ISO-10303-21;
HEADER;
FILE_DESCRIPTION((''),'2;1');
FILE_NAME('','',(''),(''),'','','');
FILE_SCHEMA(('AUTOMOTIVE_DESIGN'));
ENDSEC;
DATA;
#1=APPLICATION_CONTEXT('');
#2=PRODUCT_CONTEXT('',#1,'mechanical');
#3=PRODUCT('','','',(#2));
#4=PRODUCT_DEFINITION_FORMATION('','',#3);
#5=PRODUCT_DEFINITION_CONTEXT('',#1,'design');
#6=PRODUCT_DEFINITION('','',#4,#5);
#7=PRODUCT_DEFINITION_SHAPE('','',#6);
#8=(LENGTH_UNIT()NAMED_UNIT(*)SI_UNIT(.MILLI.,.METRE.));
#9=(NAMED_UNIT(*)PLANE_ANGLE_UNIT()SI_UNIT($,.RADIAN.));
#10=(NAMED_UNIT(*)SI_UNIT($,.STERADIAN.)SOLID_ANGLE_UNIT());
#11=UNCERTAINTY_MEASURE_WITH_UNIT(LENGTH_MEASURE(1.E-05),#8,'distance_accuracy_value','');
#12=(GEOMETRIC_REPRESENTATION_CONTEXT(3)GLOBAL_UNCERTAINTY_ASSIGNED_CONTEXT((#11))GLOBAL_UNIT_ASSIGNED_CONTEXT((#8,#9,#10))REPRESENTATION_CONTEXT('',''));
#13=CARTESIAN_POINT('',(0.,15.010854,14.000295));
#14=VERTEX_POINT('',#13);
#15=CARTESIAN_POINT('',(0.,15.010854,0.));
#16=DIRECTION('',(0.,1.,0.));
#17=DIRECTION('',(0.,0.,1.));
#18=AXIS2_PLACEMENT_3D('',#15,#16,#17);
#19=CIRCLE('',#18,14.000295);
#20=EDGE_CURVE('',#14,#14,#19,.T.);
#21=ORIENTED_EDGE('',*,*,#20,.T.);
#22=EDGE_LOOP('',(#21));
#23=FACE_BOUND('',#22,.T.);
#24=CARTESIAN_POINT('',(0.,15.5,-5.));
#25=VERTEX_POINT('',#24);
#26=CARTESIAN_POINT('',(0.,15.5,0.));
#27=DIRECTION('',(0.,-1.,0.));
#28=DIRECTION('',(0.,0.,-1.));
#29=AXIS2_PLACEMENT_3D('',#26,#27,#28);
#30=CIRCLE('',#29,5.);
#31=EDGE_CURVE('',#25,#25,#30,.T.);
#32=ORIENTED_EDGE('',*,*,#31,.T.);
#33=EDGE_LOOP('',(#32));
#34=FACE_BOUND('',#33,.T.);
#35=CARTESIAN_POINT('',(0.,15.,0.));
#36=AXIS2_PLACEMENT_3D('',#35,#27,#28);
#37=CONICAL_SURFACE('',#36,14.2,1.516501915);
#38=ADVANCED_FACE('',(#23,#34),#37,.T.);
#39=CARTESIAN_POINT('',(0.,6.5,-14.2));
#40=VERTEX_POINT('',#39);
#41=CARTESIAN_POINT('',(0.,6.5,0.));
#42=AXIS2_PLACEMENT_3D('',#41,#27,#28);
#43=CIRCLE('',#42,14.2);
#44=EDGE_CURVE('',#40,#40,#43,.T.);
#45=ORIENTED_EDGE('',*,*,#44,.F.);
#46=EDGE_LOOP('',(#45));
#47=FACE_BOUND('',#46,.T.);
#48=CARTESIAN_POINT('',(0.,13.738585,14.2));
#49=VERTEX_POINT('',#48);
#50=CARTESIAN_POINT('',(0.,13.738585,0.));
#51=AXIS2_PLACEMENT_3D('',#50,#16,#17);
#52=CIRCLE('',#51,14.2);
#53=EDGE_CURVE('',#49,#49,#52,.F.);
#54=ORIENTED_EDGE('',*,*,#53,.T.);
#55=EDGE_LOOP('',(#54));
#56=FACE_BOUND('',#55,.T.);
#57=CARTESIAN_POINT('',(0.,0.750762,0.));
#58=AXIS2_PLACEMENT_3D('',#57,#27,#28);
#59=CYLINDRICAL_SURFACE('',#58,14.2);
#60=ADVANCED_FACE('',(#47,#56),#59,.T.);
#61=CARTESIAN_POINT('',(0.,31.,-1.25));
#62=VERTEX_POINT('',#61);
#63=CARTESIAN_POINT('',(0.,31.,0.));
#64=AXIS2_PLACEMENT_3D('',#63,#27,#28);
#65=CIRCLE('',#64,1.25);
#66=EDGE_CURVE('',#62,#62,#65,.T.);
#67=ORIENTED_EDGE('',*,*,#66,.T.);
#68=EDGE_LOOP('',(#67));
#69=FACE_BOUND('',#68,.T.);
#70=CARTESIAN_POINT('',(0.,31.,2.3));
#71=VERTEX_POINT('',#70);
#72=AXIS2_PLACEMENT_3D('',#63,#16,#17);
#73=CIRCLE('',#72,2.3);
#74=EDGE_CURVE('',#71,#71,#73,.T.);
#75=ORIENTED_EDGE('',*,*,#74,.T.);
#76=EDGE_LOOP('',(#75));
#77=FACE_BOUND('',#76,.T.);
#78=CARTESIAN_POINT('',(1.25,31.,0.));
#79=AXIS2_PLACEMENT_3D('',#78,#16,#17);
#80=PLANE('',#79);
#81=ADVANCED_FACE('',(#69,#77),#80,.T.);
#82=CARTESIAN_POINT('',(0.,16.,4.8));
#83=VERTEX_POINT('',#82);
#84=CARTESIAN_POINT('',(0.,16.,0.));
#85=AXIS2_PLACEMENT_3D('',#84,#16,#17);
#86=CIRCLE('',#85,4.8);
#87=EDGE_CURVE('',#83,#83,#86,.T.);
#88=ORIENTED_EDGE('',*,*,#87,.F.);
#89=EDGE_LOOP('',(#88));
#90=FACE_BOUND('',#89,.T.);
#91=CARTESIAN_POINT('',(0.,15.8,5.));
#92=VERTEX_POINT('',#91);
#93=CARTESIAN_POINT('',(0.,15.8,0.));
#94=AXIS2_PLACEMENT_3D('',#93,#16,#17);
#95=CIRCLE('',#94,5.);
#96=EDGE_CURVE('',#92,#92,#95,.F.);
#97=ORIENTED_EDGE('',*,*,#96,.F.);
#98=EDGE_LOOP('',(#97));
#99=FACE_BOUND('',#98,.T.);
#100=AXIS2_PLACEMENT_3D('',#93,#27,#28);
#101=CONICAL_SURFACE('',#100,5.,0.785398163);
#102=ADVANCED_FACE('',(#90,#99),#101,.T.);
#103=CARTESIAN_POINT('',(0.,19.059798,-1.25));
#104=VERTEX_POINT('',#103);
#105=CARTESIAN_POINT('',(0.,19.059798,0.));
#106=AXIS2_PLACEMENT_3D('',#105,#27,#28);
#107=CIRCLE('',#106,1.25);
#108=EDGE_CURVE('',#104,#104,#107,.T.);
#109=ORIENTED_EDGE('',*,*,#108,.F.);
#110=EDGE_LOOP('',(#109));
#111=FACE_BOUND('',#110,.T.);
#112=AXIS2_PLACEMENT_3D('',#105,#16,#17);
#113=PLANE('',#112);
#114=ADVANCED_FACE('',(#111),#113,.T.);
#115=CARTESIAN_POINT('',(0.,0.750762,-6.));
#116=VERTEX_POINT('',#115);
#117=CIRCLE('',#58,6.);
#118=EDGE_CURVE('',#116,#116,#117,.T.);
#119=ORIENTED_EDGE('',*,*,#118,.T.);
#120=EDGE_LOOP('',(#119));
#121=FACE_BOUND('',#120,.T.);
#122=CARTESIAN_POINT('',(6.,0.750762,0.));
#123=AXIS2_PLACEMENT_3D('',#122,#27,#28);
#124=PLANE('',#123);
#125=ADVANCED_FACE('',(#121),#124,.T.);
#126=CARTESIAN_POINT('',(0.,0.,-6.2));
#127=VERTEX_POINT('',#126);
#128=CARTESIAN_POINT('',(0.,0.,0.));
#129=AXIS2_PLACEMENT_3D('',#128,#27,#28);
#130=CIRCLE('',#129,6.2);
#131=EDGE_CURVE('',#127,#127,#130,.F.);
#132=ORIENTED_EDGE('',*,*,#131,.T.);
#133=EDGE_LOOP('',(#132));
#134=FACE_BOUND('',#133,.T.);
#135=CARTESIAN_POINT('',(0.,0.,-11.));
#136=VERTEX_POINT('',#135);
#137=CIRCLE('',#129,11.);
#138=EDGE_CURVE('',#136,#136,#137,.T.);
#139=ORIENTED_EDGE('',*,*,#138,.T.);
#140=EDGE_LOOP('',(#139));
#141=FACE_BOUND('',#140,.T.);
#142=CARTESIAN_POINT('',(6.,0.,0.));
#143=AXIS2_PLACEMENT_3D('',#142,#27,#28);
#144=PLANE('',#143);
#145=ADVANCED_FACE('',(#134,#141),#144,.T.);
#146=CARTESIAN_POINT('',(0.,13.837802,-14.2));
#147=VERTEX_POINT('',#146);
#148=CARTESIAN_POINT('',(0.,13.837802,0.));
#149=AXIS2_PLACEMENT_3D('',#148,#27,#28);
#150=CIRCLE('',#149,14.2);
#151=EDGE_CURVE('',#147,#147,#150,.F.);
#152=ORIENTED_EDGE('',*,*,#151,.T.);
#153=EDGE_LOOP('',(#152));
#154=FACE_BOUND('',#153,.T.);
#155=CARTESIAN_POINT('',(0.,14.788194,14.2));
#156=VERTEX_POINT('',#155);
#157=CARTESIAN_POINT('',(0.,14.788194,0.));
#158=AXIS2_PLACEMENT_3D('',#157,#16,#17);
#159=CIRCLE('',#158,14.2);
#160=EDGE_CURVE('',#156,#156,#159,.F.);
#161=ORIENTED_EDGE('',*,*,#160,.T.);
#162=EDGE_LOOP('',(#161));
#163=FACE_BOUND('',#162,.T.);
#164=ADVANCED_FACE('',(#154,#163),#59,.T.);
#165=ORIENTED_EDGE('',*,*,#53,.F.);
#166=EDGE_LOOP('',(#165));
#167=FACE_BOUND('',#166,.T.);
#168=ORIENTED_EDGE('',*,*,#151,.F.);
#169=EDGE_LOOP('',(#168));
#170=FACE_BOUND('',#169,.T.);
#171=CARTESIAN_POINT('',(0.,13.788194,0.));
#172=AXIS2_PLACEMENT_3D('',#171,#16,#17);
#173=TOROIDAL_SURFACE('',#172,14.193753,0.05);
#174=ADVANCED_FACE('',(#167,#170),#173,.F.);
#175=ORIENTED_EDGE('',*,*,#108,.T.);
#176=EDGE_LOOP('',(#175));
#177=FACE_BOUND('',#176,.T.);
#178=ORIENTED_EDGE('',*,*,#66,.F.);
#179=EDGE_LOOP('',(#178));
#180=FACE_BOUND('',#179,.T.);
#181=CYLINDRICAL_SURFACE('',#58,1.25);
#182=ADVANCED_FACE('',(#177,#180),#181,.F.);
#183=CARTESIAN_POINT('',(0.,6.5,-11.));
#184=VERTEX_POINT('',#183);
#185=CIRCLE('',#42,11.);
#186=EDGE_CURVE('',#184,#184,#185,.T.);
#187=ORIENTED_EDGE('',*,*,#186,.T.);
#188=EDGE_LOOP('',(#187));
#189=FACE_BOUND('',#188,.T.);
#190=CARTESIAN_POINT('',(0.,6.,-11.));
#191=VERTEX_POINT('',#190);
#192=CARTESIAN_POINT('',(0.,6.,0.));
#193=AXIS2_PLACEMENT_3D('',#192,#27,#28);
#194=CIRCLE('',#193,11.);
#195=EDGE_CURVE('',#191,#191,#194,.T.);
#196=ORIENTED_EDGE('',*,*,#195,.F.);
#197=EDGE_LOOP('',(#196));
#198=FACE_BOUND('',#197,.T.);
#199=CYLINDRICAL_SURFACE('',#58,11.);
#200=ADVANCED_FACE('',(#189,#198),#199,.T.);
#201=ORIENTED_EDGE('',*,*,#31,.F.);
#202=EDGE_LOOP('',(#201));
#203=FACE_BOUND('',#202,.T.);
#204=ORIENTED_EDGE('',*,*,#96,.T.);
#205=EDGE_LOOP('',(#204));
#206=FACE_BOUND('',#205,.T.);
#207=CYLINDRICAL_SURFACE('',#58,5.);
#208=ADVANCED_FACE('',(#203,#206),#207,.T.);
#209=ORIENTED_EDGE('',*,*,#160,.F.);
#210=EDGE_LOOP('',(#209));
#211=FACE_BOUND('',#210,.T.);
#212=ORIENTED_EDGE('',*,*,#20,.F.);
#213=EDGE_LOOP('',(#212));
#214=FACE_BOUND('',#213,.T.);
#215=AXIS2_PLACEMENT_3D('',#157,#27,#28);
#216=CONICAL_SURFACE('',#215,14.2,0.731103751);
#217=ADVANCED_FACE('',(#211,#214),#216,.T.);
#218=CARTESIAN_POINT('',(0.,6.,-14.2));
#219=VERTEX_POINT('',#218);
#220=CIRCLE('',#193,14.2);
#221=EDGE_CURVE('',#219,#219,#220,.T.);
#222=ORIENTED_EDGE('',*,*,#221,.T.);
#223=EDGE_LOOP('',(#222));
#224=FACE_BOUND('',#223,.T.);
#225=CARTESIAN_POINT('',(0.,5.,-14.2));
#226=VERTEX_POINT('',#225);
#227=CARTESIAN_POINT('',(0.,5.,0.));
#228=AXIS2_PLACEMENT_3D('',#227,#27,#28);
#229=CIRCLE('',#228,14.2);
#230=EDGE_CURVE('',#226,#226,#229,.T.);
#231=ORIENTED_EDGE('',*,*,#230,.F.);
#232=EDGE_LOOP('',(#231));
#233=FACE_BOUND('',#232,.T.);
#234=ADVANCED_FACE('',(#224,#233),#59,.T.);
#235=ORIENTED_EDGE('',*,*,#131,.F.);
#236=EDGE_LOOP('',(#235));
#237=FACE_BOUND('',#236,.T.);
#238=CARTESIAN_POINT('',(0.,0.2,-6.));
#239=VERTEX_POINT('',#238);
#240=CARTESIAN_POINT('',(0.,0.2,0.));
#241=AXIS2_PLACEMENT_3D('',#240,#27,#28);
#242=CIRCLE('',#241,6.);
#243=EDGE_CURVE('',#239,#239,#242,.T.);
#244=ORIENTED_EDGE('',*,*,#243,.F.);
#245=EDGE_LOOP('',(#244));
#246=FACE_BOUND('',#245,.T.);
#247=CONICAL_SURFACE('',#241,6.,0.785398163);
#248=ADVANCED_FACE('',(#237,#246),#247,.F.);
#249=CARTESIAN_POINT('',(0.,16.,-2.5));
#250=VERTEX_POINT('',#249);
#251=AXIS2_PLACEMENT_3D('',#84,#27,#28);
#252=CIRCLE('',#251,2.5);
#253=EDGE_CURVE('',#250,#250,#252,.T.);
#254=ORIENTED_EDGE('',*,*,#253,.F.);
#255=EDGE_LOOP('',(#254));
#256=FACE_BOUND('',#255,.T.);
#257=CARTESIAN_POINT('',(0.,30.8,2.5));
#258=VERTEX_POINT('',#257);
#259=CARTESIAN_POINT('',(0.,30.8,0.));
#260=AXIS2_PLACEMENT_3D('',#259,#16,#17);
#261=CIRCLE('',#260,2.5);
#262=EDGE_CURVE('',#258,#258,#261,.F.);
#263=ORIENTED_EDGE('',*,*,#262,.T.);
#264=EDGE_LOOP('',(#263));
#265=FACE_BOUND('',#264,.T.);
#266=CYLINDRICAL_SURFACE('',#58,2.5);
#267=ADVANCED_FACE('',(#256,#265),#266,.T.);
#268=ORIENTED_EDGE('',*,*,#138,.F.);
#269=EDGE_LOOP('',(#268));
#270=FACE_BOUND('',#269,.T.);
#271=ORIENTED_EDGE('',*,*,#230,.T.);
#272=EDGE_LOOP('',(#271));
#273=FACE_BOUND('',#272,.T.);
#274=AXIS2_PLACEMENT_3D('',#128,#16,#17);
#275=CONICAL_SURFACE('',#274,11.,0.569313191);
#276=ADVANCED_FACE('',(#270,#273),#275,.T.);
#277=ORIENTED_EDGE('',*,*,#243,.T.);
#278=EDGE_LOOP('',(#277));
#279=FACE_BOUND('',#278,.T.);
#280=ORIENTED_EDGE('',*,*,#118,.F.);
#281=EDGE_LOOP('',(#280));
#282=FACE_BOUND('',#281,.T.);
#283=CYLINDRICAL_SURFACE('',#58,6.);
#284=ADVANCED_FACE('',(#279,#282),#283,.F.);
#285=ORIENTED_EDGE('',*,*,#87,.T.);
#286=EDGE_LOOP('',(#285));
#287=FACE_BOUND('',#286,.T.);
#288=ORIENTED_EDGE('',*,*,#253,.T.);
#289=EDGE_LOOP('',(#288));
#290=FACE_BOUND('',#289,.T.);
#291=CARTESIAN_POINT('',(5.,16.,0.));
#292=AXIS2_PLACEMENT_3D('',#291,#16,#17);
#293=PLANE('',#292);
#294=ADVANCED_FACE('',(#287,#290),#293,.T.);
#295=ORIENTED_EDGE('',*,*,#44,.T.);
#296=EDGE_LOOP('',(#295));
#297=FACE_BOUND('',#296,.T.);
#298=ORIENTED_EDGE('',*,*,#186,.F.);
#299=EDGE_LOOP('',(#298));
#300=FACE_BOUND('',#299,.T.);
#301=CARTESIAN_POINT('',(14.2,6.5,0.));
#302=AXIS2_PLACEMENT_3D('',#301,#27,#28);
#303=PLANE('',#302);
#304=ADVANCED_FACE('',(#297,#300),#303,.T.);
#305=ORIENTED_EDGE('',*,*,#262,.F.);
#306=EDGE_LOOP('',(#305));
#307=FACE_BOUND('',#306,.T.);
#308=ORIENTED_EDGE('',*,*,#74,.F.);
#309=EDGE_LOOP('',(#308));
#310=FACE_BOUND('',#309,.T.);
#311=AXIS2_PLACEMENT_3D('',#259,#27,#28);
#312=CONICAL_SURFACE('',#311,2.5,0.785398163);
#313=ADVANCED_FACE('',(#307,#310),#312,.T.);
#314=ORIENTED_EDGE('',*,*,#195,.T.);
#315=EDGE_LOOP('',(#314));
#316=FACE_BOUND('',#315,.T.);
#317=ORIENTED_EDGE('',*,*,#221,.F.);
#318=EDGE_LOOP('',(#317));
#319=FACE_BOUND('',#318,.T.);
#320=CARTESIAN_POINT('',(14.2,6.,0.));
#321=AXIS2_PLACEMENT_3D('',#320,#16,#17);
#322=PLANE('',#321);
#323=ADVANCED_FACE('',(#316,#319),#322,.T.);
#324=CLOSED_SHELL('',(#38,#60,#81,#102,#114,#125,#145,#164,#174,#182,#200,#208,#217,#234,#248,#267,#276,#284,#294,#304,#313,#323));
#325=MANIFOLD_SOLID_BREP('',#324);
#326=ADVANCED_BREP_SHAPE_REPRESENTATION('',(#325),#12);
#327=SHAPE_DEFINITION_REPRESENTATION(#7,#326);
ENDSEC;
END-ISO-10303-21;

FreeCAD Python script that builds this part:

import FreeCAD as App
import Part
import Sketcher
from FreeCAD import Vector
Q = App.Units.Quantity


def edges_at(feature, points):
    """Names of the edges that pass closest to the given points."""
    edges = feature.Shape.Edges
    near = lambda p: min(range(len(edges)), key=lambda i: edges[i].distToShape(Part.Vertex(*p))[0])
    return sorted({f"Edge{near(p) + 1}" for p in points})


def add_polygon(sketch, points):
    """Adds a closed chain of lines whose ends are joined by coincident constraints."""
    first, n = sketch.GeometryCount, len(points)
    for a, b in zip(points, points[1:] + points[:1]):
        sketch.addGeometry(Part.LineSegment(App.Vector(*a, 0), App.Vector(*b, 0)), False)
    for i in range(n):
        sketch.addConstraint(Sketcher.Constraint("Coincident", first + i, 2, first + (i + 1) % n, 1))

doc = App.newDocument("Part")
body = doc.addObject("PartDesign::Body", "Body")

sketch1 = body.newObject("Sketcher::SketchObject", "Sketch")
sketch1.AttachmentSupport = (doc.getObject("XY_Plane"), [""])
sketch1.MapMode = "FlatFace"
add_polygon(sketch1, [(0, 19.1), (0, 0.8), (6, 0.8), (6, 0), (11, 0), (14.2, 5), (14.2, 6), (11, 6), (11, 6.5), (14.2, 6.5), (14.2, 15), (5, 15.5), (5, 16), (2.5, 16), (2.5, 31), (1.2, 31), (1.2, 19.1)])
sketch1.addConstraint([
    Sketcher.Constraint("Vertical", 0),
    Sketcher.Constraint("Horizontal", 1),
    Sketcher.Constraint("Vertical", 2),
    Sketcher.Constraint("Horizontal", 3),
    Sketcher.Constraint("Vertical", 5),
    Sketcher.Constraint("Horizontal", 6),
    Sketcher.Constraint("Vertical", 7),
    Sketcher.Constraint("Horizontal", 8),
    Sketcher.Constraint("Vertical", 9),
    Sketcher.Constraint("Vertical", 11),
    Sketcher.Constraint("Horizontal", 12),
    Sketcher.Constraint("Vertical", 13),
    Sketcher.Constraint("Horizontal", 14),
    Sketcher.Constraint("Vertical", 15),
    Sketcher.Constraint("Horizontal", 16),
    Sketcher.Constraint("PointOnObject", 0, 2, -2),
    Sketcher.Constraint("PointOnObject", 2, 2, -1),
    Sketcher.Constraint("Vertical", 3, 2, 6, 2),
    Sketcher.Constraint("Vertical", 5, 2, 8, 2),
    Sketcher.Constraint("Equal", 14, 16),
    Sketcher.Constraint("Equal", 7, 11),
    Sketcher.Constraint("DistanceX", 1, 1, 1, 2, Q("6 mm")),
    Sketcher.Constraint("DistanceX", 3, 1, 3, 2, Q("5 mm")),
    Sketcher.Constraint("DistanceY", 5, 1, 5, 2, Q("1 mm")),
    Sketcher.Constraint("DistanceY", 13, 1, 13, 2, Q("15 mm")),
    Sketcher.Constraint("DistanceX", 6, 2, 6, 1, Q("3.2 mm")),
    Sketcher.Constraint("DistanceX", 12, 2, 12, 1, Q("2.5 mm")),
    Sketcher.Constraint("DistanceY", 7, 1, 7, 2, Q("0.5 mm")),
    Sketcher.Constraint("DistanceY", 9, 1, 9, 2, Q("8.5 mm")),
    Sketcher.Constraint("DistanceY", -1, 1, 4, 2, Q("5 mm")),
    Sketcher.Constraint("DistanceX", -1, 1, 10, 2, Q("5 mm")),
    Sketcher.Constraint("DistanceY", -1, 1, 11, 2, Q("16 mm")),
    Sketcher.Constraint("DistanceY", 15, 2, 15, 1, Q("11.940202 mm")),
    Sketcher.Constraint("DistanceY", 0, 2, 0, 1, Q("18.309036 mm")),
])
revolution = body.newObject("PartDesign::Revolution", "Revolution")
revolution.Profile = sketch1
revolution.ReferenceAxis = (sketch1, ["V_Axis"])
revolution.Angle = 360
doc.recompute()

chamfer = body.newObject("PartDesign::Chamfer", "Chamfer")
chamfer.Base = (revolution, edges_at(revolution, [(-2.5, 31, 0)]))
chamfer.Size = 0.2
doc.recompute()

chamfer2 = body.newObject("PartDesign::Chamfer", "Chamfer001")
chamfer2.Base = (chamfer, edges_at(chamfer, [(-5, 16, 0)]))
chamfer2.Size = 0.2
doc.recompute()

chamfer3 = body.newObject("PartDesign::Chamfer", "Chamfer002")
chamfer3.Base = (chamfer2, edges_at(chamfer2, [(-14.2, 15, 0)]))
chamfer3.ChamferType = "Two distances"
chamfer3.Size = 0.2
chamfer3.Size2 = 0.211806
doc.recompute()

chamfer4 = body.newObject("PartDesign::Chamfer", "Chamfer003")
chamfer4.Base = (chamfer3, edges_at(chamfer3, [(-6, 0, 0)]))
chamfer4.Size = 0.2

sketch2 = body.newObject("Sketcher::SketchObject", "Sketch001")
sketch2.AttachmentSupport = (doc.getObject("XY_Plane"), [""])
sketch2.MapMode = "FlatFace"
sketch2.addGeometry(Part.Circle(Vector(14.19, 13.79, 0), Vector(0, 0, 1), 0.05), False)
sketch2.addConstraint([
    Sketcher.Constraint("Diameter", 0, Q("0.1 mm")),
    Sketcher.Constraint("DistanceX", -1, 1, 0, 3, Q("14.193753 mm")),
    Sketcher.Constraint("DistanceY", -1, 1, 0, 3, Q("13.788194 mm")),
])
groove = body.newObject("PartDesign::Groove", "Groove")
groove.Profile = sketch2
groove.ReferenceAxis = (sketch2, ["V_Axis"])
groove.Angle = 360

doc.recompute()
